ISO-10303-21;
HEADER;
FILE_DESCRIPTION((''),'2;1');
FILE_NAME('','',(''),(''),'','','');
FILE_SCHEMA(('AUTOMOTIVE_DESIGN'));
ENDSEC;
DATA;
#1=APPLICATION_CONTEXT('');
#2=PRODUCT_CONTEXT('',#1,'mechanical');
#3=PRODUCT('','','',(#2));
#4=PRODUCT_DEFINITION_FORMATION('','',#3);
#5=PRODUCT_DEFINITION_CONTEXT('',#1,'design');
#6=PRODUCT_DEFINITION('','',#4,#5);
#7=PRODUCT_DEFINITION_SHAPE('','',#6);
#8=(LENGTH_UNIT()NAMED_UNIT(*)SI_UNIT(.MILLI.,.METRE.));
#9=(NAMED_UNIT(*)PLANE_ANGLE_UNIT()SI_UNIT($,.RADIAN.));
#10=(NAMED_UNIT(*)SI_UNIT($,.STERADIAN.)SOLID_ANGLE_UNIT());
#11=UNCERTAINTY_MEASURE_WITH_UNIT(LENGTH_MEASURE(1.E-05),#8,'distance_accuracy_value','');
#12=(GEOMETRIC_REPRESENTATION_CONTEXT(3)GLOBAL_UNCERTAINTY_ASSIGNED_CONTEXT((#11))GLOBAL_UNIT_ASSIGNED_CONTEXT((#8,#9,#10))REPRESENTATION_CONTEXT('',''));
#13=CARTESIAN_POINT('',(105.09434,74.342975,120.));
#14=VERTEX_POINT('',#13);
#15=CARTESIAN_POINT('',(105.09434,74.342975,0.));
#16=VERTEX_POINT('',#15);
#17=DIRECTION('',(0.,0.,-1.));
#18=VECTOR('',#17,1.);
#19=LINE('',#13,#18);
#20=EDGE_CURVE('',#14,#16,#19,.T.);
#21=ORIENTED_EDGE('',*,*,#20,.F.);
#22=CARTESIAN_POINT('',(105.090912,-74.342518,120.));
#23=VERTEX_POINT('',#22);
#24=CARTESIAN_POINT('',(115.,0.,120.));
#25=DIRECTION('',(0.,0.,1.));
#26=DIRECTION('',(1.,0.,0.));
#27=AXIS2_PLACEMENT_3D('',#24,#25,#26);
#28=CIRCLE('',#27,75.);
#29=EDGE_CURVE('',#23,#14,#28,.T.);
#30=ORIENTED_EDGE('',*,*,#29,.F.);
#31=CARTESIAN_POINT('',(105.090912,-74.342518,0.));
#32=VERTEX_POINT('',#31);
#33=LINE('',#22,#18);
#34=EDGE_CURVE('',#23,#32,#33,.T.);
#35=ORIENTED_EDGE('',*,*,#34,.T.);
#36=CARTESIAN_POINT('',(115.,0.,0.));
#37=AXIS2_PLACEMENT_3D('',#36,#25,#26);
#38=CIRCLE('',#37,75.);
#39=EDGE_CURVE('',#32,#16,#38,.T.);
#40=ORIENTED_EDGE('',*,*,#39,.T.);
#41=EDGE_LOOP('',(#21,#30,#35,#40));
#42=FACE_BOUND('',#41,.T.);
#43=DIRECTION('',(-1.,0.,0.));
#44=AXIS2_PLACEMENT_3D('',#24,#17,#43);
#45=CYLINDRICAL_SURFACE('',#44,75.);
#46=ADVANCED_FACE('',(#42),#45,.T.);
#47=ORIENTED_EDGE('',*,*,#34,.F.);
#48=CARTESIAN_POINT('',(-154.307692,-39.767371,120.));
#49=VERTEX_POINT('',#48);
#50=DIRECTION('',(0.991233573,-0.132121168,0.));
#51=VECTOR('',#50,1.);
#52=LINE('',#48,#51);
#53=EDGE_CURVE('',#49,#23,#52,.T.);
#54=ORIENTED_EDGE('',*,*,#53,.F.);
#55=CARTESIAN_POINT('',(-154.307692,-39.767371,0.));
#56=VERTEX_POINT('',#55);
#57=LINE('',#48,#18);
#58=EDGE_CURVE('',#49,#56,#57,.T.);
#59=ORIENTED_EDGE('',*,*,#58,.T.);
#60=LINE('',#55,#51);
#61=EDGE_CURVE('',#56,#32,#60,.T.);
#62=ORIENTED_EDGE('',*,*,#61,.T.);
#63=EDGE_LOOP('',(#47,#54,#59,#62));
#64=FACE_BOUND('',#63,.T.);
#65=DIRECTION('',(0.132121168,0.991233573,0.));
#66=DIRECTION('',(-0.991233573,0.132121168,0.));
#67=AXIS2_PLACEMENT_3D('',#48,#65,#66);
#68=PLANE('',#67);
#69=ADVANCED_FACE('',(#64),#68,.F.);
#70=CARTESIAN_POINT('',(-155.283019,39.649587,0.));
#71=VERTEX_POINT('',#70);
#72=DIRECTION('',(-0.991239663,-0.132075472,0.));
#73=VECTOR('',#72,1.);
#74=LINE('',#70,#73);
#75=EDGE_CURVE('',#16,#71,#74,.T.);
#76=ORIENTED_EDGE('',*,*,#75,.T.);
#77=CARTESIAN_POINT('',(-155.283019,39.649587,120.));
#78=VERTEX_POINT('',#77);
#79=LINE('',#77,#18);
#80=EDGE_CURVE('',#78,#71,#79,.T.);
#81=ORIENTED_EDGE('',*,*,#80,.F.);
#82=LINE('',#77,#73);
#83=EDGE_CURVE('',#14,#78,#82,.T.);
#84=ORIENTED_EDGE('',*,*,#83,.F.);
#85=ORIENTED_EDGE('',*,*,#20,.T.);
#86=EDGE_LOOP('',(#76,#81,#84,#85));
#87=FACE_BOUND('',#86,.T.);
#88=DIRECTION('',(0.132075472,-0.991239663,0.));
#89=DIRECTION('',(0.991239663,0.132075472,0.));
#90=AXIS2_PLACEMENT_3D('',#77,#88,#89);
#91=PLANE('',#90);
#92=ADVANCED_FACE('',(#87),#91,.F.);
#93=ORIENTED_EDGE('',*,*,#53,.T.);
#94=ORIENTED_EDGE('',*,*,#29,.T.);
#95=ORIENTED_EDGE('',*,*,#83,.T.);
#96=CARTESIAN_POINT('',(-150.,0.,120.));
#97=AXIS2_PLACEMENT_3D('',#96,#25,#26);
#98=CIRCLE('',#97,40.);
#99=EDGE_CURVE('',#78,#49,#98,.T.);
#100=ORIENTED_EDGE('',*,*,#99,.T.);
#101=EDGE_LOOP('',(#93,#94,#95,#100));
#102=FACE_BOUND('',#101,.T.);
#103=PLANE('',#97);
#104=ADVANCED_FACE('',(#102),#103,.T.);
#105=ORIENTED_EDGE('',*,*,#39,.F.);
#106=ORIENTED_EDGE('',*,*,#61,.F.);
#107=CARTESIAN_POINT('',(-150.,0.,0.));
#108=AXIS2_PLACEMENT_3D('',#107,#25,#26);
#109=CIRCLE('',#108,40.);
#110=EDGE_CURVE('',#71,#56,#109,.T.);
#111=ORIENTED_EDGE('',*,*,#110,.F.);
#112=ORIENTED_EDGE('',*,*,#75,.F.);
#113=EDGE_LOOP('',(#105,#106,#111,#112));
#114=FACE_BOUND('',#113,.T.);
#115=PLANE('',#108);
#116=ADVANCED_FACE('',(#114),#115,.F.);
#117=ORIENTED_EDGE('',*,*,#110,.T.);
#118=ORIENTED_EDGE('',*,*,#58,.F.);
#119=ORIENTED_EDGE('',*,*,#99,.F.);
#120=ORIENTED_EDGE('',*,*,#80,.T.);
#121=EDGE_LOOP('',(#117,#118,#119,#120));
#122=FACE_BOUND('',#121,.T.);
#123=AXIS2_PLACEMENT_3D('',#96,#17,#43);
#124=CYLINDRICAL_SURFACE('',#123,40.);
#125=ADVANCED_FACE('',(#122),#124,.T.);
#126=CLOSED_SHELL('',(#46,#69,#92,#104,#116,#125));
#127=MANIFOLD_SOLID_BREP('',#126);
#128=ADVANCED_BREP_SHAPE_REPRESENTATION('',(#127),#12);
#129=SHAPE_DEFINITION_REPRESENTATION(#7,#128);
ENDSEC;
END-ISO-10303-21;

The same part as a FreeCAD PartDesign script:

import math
import FreeCAD as App
import Part
import Sketcher
from FreeCAD import Vector

doc = App.newDocument("Part")
params = doc.addObject("Spreadsheet::Sheet", "Params")
for row, (alias, value) in enumerate([
    ("sketch1_radius", "40 mm"),
    ("sketch1_radius2", "75 mm"),
    ("pad1_length", "120 mm"),
], start=1):
    params.set(f"A{row}", alias)
    params.set(f"B{row}", "=" + value)
    params.setAlias(f"B{row}", alias)

body = doc.addObject("PartDesign::Body", "Body")

# Sketch on XY plane
sketch1 = doc.addObject("Sketcher::SketchObject", "Sketch")
body.addObject(sketch1)
sketch1.AttachmentSupport = (doc.XY_Plane, [""])
sketch1.MapMode = "FlatFace"
sketch1.addGeometry([
    Part.LineSegment(Vector(105, 74, 0), Vector(-155, 40, 0)),
    Part.ArcOfCircle(Part.Circle(Vector(-150, 0, 0), Vector(0, 0, 1), 40), math.radians(98), math.radians(264)),
    Part.LineSegment(Vector(-154, -40, 0), Vector(105, -74, 0)),
    Part.ArcOfCircle(Part.Circle(Vector(115, 0, 0), Vector(0, 0, 1), 75), math.radians(-98), math.radians(98)),
], False)
sketch1.addConstraint([
    Sketcher.Constraint("Tangent", 0, 2, 1, 1),
    Sketcher.Constraint("Coincident", 1, 2, 2, 1),
    Sketcher.Constraint("Tangent", 2, 2, 3, 1),
    Sketcher.Constraint("Tangent", 3, 2, 0, 1),
    Sketcher.Constraint("PointOnObject", 1, 3, -1),
    Sketcher.Constraint("PointOnObject", 3, 3, -1),
    Sketcher.Constraint("Radius", 1, 40.0),
    Sketcher.Constraint("Radius", 3, 75.0),
    Sketcher.Constraint("DistanceX", 1, 3, -1, 1, 150.0),
    Sketcher.Constraint("DistanceX", -1, 1, 3, 3, 115.0),
    Sketcher.Constraint("DistanceY", 1, 2, -1, 1, 39.767371),
])
sketch1.setExpression("Constraints[6]", "Params.sketch1_radius")
sketch1.setExpression("Constraints[7]", "Params.sketch1_radius2")
pad1 = doc.addObject("PartDesign::Pad", "Pad")
body.addObject(pad1)
pad1.Profile = sketch1
pad1.setExpression("Length", "Params.pad1_length")

doc.recompute()
